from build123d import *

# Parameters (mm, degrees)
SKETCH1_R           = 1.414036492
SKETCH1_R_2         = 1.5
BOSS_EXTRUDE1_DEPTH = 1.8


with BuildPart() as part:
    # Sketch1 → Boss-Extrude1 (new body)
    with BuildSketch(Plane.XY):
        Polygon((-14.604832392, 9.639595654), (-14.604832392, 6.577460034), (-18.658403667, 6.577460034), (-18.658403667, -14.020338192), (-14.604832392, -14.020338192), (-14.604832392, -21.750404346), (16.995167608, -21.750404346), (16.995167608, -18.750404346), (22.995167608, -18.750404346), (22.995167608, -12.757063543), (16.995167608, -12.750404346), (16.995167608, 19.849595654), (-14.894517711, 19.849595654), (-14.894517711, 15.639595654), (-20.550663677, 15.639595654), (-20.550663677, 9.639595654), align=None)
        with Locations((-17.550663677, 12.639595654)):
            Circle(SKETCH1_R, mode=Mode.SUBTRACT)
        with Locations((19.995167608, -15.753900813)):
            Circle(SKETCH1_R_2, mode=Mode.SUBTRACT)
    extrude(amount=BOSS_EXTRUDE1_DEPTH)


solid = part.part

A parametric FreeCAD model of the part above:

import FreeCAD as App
import Part
import Sketcher


def add_polygon(sketch, points):
    """Adds a closed chain of lines whose ends are joined by coincident constraints."""
    first, n = sketch.GeometryCount, len(points)
    for a, b in zip(points, points[1:] + points[:1]):
        sketch.addGeometry(Part.LineSegment(App.Vector(*a, 0), App.Vector(*b, 0)), False)
    for i in range(n):
        sketch.addConstraint(Sketcher.Constraint("Coincident", first + i, 2, first + (i + 1) % n, 1))

doc = App.newDocument("Part")
params = doc.addObject("Spreadsheet::Sheet", "Params")
for row, (alias, value) in enumerate([
    ("sketch1_diameter", "3 mm"),
    ("sketch1_width", "6 mm"),
    ("sketch1_height", "3 mm"),
    ("sketch1_width2", "31.6 mm"),
    ("sketch1_height2", "32.6 mm"),
    ("pad1_length", "1.8 mm"),
], start=1):
    params.set(f"A{row}", alias)
    params.set(f"B{row}", "=" + value)
    params.setAlias(f"B{row}", alias)

body = doc.addObject("PartDesign::Body", "Body")

sketch1 = doc.addObject("Sketcher::SketchObject", "Sketch")
body.addObject(sketch1)
sketch1.AttachmentSupport = (doc.XY_Plane, [""])
sketch1.MapMode = "FlatFace"
add_polygon(sketch1, [(-14.6, 9.6), (-14.6, 6.6), (-18.7, 6.6), (-18.7, -14), (-14.6, -14), (-14.6, -21.8), (17, -21.8), (17, -18.8), (23, -18.8), (23, -12.8), (17, -12.8), (17, 19.8), (-14.9, 19.8), (-14.9, 15.6), (-20.6, 15.6), (-20.6, 9.6)])
sketch1.addGeometry(Part.Circle(App.Vector(20, -15.8, 0), App.Vector(0, 0, 1), 1.5), False)
sketch1.addGeometry(Part.Circle(App.Vector(-17.6, 12.6, 0), App.Vector(0, 0, 1), 1.4), False)
sketch1.addConstraint([
    Sketcher.Constraint("Vertical", 0),
    Sketcher.Constraint("Horizontal", 1),
    Sketcher.Constraint("Vertical", 2),
    Sketcher.Constraint("Horizontal", 3),
    Sketcher.Constraint("Vertical", 4),
    Sketcher.Constraint("Horizontal", 5),
    Sketcher.Constraint("Vertical", 6),
    Sketcher.Constraint("Horizontal", 7),
    Sketcher.Constraint("Vertical", 8),
    Sketcher.Constraint("Vertical", 10),
    Sketcher.Constraint("Horizontal", 11),
    Sketcher.Constraint("Vertical", 12),
    Sketcher.Constraint("Horizontal", 13),
    Sketcher.Constraint("Vertical", 14),
    Sketcher.Constraint("Horizontal", 15),
    Sketcher.Constraint("Vertical", 0, 2, 3, 2),
    Sketcher.Constraint("Vertical", 6, 2, 9, 2),
    Sketcher.Constraint("Equal", 7, 14),
    Sketcher.Constraint("Diameter", 16, 3.0),
    Sketcher.Constraint("DistanceX", 7, 1, 7, 2, 6.0),
    Sketcher.Constraint("DistanceY", 6, 1, 6, 2, 3.0),
    Sketcher.Constraint("DistanceX", 5, 1, 5, 2, 31.6),
    Sketcher.Constraint("DistanceY", 10, 1, 10, 2, 32.6),
    Sketcher.Constraint("DistanceX", 5, 2, 16, 3, 3.0),
    Sketcher.Constraint("DistanceY", 6, 2, 9, 2, 6.0),
    Sketcher.Constraint("DistanceY", 17, 3, 12, 2, 3.0),
    Sketcher.Constraint("DistanceX", 13, 2, 17, 3, 3.0),
    Sketcher.Constraint("DistanceY", 12, 2, 12, 1, 4.21),
    Sketcher.Constraint("Diameter", 17, 2.828073),
    Sketcher.Constraint("DistanceY", 2, 2, 2, 1, 20.597798),
    Sketcher.Constraint("DistanceX", 1, 2, 1, 1, 4.053571),
    Sketcher.Constraint("DistanceX", 15, 1, 15, 2, 5.945831),
    Sketcher.Constraint("DistanceY", 8, 1, 8, 2, 5.993341),
    Sketcher.Constraint("DistanceY", 16, 3, -1, 1, 15.753901),
    Sketcher.Constraint("DistanceX", 11, 2, 11, 1, 31.889685),
    Sketcher.Constraint("DistanceY", 0, 2, 0, 1, 3.062136),
    Sketcher.Constraint("DistanceY", -1, 1, 0, 2, 6.57746),
    Sketcher.Constraint("DistanceX", -1, 1, 16, 3, 19.995168),
])
sketch1.setExpression("Constraints[34]", "Params.sketch1_diameter")
sketch1.setExpression("Constraints[35]", "Params.sketch1_width")
sketch1.setExpression("Constraints[36]", "Params.sketch1_height")
sketch1.setExpression("Constraints[37]", "Params.sketch1_width2")
sketch1.setExpression("Constraints[38]", "Params.sketch1_height2")
pad1 = doc.addObject("PartDesign::Pad", "Pad")
body.addObject(pad1)
pad1.Profile = sketch1
pad1.setExpression("Length", "Params.pad1_length")

doc.recompute()
